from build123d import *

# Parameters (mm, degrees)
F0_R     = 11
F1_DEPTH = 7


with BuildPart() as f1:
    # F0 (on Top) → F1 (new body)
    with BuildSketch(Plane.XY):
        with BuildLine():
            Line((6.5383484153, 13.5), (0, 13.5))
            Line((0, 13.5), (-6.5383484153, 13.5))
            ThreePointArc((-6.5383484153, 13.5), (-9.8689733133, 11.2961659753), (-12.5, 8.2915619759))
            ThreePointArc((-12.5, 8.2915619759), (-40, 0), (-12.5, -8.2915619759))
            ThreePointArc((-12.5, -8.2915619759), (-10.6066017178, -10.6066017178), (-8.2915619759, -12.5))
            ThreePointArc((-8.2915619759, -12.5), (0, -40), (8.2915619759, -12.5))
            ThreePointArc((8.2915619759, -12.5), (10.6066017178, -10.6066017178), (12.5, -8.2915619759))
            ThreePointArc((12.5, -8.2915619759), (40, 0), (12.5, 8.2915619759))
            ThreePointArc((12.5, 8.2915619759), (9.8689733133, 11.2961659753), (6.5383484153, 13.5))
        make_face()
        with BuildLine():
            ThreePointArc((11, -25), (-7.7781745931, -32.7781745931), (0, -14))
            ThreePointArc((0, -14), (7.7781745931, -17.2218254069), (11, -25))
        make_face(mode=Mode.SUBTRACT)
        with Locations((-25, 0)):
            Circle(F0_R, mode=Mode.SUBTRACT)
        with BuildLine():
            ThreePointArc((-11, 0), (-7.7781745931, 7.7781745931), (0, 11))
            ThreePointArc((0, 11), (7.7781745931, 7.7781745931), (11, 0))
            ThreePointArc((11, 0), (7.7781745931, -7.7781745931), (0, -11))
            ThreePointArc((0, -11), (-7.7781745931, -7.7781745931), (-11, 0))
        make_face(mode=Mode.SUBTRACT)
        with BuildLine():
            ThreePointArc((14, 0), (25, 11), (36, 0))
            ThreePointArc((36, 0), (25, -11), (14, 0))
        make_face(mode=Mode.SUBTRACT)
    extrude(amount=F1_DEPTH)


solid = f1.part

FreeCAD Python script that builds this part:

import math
import FreeCAD as App
import Part
import Sketcher

doc = App.newDocument("Part")
body = doc.addObject("PartDesign::Body", "Body")

sketch1 = body.newObject("Sketcher::SketchObject", "Sketch")
sketch1.AttachmentSupport = (doc.getObject("XY_Plane"), [""])
sketch1.MapMode = "FlatFace"
sketch1.addGeometry(Part.LineSegment(App.Vector(7, 14, 0), App.Vector(-7, 14, 0)), False)
sketch1.addGeometry(Part.ArcOfCircle(Part.Circle(App.Vector(0, 0, 0), App.Vector(0, 0, 1), 15), math.radians(116), math.radians(146)), False)
sketch1.addGeometry(Part.ArcOfCircle(Part.Circle(App.Vector(-25, 0, 0), App.Vector(0, 0, 1), 15), math.radians(34), math.radians(326)), False)
sketch1.addGeometry(Part.ArcOfCircle(Part.Circle(App.Vector(0, 0, 0), App.Vector(0, 0, 1), 15), math.radians(-146), math.radians(-124)), False)
sketch1.addGeometry(Part.ArcOfCircle(Part.Circle(App.Vector(0, -25, 0), App.Vector(0, 0, 1), 15), math.radians(124), math.radians(416)), False)
sketch1.addGeometry(Part.ArcOfCircle(Part.Circle(App.Vector(0, 0, 0), App.Vector(0, 0, 1), 15), math.radians(-56), math.radians(-34)), False)
sketch1.addGeometry(Part.ArcOfCircle(Part.Circle(App.Vector(25, 0, 0), App.Vector(0, 0, 1), 15), math.radians(-146), math.radians(146)), False)
sketch1.addGeometry(Part.ArcOfCircle(Part.Circle(App.Vector(0, 0, 0), App.Vector(0, 0, 1), 15), math.radians(34), math.radians(64)), False)
sketch1.addGeometry(Part.ArcOfCircle(Part.Circle(App.Vector(0, -25, 0), App.Vector(0, 0, 1), 11), math.radians(0), math.radians(90)), False)
sketch1.addGeometry(Part.ArcOfCircle(Part.Circle(App.Vector(0, -25, 0), App.Vector(0, 0, 1), 11), math.radians(90), math.radians(360)), False)
sketch1.addGeometry(Part.Circle(App.Vector(-25, 0, 0), App.Vector(0, 0, 1), 11), False)
sketch1.addGeometry(Part.ArcOfCircle(Part.Circle(App.Vector(0, 0, 0), App.Vector(0, 0, 1), 11), math.radians(180), math.radians(270)), False)
sketch1.addGeometry(Part.ArcOfCircle(Part.Circle(App.Vector(0, 0, 0), App.Vector(0, 0, 1), 11), math.radians(90), math.radians(180)), False)
sketch1.addGeometry(Part.ArcOfCircle(Part.Circle(App.Vector(0, 0, 0), App.Vector(0, 0, 1), 11), math.radians(0), math.radians(90)), False)
sketch1.addGeometry(Part.ArcOfCircle(Part.Circle(App.Vector(0, 0, 0), App.Vector(0, 0, 1), 11), math.radians(-90), math.radians(0)), False)
sketch1.addGeometry(Part.Circle(App.Vector(25, 0, 0), App.Vector(0, 0, 1), 11), False)
sketch1.addConstraint(Sketcher.Constraint("Coincident", 0, 2, 1, 1))
sketch1.addConstraint(Sketcher.Constraint("Coincident", 1, 2, 2, 1))
sketch1.addConstraint(Sketcher.Constraint("Coincident", 2, 2, 3, 1))
sketch1.addConstraint(Sketcher.Constraint("Coincident", 3, 2, 4, 1))
sketch1.addConstraint(Sketcher.Constraint("Coincident", 4, 2, 5, 1))
sketch1.addConstraint(Sketcher.Constraint("Coincident", 5, 2, 6, 1))
sketch1.addConstraint(Sketcher.Constraint("Coincident", 6, 2, 7, 1))
sketch1.addConstraint(Sketcher.Constraint("Coincident", 7, 2, 0, 1))
sketch1.addConstraint(Sketcher.Constraint("Tangent", 8, 1, 9, 2))
sketch1.addConstraint(Sketcher.Constraint("Coincident", 9, 1, 8, 2))
sketch1.addConstraint(Sketcher.Constraint("Tangent", 11, 1, 12, 2))
sketch1.addConstraint(Sketcher.Constraint("Tangent", 12, 1, 13, 2))
sketch1.addConstraint(Sketcher.Constraint("Tangent", 13, 1, 14, 2))
sketch1.addConstraint(Sketcher.Constraint("Tangent", 14, 1, 11, 2))
sketch1.addConstraint(Sketcher.Constraint("Horizontal", 0))
sketch1.addConstraint(Sketcher.Constraint("Coincident", 1, 3, -1, 1))
sketch1.addConstraint(Sketcher.Constraint("Coincident", 3, 3, -1, 1))
sketch1.addConstraint(Sketcher.Constraint("Coincident", 5, 3, -1, 1))
sketch1.addConstraint(Sketcher.Constraint("Coincident", 7, 3, -1, 1))
sketch1.addConstraint(Sketcher.Constraint("Coincident", 11, 3, -1, 1))
sketch1.addConstraint(Sketcher.Constraint("Coincident", 8, 3, 4, 3))
sketch1.addConstraint(Sketcher.Constraint("Coincident", 10, 3, 2, 3))
sketch1.addConstraint(Sketcher.Constraint("Coincident", 15, 3, 6, 3))
sketch1.addConstraint(Sketcher.Constraint("Equal", 1, 2))
sketch1.addConstraint(Sketcher.Constraint("Equal", 2, 3))
sketch1.addConstraint(Sketcher.Constraint("Equal", 3, 4))
sketch1.addConstraint(Sketcher.Constraint("Equal", 4, 5))
sketch1.addConstraint(Sketcher.Constraint("Equal", 5, 6))
sketch1.addConstraint(Sketcher.Constraint("Equal", 6, 7))
sketch1.addConstraint(Sketcher.Constraint("Equal", 9, 10))
sketch1.addConstraint(Sketcher.Constraint("Equal", 10, 11))
sketch1.addConstraint(Sketcher.Constraint("Equal", 11, 12))
sketch1.addConstraint(Sketcher.Constraint("Equal", 14, 15))
sketch1.addConstraint(Sketcher.Constraint("Symmetric", 2, 3, 6, 3, -1, 1))
sketch1.addConstraint(Sketcher.Constraint("PointOnObject", 2, 3, -1))
sketch1.addConstraint(Sketcher.Constraint("PointOnObject", 4, 3, -2))
sketch1.addConstraint(Sketcher.Constraint("PointOnObject", 9, 1, -2))
sketch1.addConstraint(Sketcher.Constraint("PointOnObject", 11, 1, -1))
sketch1.addConstraint(Sketcher.Constraint("PointOnObject", 12, 1, -2))
sketch1.addConstraint(Sketcher.Constraint("PointOnObject", 13, 1, -1))
sketch1.addConstraint(Sketcher.Constraint("PointOnObject", 14, 1, -2))
sketch1.addConstraint(Sketcher.Constraint("Horizontal", 9, 3, 8, 1))
sketch1.addConstraint(Sketcher.Constraint("Diameter", 10, 22.0))
sketch1.addConstraint(Sketcher.Constraint("Radius", 1, 15.0))
sketch1.addConstraint(Sketcher.Constraint("DistanceX", 2, 3, -1, 1, 25.0))
sketch1.addConstraint(Sketcher.Constraint("DistanceY", 4, 3, -1, 1, 25.0))
sketch1.addConstraint(Sketcher.Constraint("DistanceY", -1, 1, 0, 2, 13.5))
pad1 = body.newObject("PartDesign::Pad", "Pad")
pad1.Profile = sketch1
pad1.Length = 7

doc.recompute()
